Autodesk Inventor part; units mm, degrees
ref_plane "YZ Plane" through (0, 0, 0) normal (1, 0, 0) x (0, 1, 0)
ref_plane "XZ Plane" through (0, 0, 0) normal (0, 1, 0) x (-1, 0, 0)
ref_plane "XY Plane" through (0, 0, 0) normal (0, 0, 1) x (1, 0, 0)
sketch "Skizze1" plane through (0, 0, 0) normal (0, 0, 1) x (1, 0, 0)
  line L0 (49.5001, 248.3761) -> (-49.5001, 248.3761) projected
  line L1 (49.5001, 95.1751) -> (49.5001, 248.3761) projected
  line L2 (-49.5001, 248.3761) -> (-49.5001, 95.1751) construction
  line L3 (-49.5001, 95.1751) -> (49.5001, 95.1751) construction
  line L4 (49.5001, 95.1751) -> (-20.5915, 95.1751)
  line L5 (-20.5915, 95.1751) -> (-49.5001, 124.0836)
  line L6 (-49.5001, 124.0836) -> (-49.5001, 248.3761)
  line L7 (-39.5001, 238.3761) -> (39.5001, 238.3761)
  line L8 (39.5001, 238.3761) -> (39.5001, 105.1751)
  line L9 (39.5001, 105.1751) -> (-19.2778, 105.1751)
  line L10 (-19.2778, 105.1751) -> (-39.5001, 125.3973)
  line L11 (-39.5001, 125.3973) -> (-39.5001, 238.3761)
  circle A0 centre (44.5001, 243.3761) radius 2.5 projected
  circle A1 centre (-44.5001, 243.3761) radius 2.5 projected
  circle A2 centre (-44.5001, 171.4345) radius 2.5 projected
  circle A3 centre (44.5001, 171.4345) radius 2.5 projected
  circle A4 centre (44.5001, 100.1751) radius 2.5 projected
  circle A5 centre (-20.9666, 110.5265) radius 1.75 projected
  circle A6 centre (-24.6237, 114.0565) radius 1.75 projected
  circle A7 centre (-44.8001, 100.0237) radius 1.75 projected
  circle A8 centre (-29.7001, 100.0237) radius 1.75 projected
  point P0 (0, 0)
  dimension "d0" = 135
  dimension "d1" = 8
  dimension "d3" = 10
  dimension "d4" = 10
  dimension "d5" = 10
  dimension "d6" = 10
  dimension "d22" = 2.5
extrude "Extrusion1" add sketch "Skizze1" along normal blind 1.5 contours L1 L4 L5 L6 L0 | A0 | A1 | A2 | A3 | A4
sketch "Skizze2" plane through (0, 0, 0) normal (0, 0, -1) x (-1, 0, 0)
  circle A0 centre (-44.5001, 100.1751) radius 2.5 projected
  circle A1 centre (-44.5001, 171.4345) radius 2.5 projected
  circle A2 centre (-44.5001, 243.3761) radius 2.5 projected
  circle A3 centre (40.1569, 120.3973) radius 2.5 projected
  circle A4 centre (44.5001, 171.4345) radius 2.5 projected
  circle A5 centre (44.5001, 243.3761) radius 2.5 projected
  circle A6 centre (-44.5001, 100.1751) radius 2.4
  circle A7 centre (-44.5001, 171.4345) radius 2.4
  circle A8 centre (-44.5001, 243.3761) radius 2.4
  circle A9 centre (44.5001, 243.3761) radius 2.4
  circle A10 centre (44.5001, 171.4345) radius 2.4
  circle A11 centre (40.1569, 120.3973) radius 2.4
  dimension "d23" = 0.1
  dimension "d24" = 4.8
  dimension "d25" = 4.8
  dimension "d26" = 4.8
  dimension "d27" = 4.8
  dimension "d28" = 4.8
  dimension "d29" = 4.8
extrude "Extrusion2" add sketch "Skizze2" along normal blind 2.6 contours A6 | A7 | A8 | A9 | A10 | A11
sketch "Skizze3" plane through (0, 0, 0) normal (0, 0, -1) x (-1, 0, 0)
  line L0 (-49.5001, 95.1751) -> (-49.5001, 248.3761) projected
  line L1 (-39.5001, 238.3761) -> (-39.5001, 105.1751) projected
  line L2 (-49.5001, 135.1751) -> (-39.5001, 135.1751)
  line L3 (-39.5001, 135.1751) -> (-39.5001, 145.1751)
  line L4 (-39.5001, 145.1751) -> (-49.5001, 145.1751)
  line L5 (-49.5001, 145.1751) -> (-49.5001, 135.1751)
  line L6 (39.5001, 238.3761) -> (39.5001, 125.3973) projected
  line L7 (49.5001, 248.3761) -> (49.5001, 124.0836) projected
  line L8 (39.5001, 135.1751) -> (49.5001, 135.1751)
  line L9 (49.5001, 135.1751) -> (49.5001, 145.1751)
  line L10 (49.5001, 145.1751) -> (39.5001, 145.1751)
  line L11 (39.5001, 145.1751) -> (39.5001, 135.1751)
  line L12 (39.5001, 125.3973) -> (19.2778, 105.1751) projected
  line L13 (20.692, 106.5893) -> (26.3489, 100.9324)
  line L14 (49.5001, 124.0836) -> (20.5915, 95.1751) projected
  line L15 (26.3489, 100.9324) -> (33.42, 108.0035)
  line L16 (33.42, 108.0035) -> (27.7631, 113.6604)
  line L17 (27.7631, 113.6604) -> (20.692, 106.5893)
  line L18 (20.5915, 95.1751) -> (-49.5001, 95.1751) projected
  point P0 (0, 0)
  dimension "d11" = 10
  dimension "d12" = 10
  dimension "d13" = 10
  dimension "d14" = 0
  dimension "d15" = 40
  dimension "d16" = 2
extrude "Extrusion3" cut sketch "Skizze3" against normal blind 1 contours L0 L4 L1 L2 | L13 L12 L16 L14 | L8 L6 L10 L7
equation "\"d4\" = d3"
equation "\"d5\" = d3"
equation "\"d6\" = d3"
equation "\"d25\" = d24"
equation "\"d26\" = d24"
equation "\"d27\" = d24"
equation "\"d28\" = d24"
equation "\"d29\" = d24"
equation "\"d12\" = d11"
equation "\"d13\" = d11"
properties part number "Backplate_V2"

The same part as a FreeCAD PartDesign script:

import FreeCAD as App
import Part
import Sketcher
Q = App.Units.Quantity


def add_polygon(sketch, points):
    """Adds a closed chain of lines whose ends are joined by coincident constraints."""
    first, n = sketch.GeometryCount, len(points)
    for a, b in zip(points, points[1:] + points[:1]):
        sketch.addGeometry(Part.LineSegment(App.Vector(*a, 0), App.Vector(*b, 0)), False)
    for i in range(n):
        sketch.addConstraint(Sketcher.Constraint("Coincident", first + i, 2, first + (i + 1) % n, 1))

doc = App.newDocument("Part")
body = doc.addObject("PartDesign::Body", "Body")

# Sketch on XY plane
sketch1 = doc.addObject("Sketcher::SketchObject", "Sketch")
body.addObject(sketch1)
sketch1.AttachmentSupport = (doc.XY_Plane, [""])
sketch1.MapMode = "FlatFace"
add_polygon(sketch1, [(50, 95), (50, 248), (-50, 248), (-50, 124), (-21, 95)])  # lines 0-4
add_polygon(sketch1, [(-40, 125), (-40, 238), (40, 238), (40, 105), (-19, 105)])  # lines 5-9
sketch1.addConstraint([
    Sketcher.Constraint("Vertical", 0),
    Sketcher.Constraint("Horizontal", 1),
    Sketcher.Constraint("Vertical", 2),
    Sketcher.Constraint("Horizontal", 4),
    Sketcher.Constraint("Vertical", 5),
    Sketcher.Constraint("Horizontal", 6),
    Sketcher.Constraint("Vertical", 7),
    Sketcher.Constraint("Horizontal", 8),
    Sketcher.Constraint("Parallel", 3, 9),
    Sketcher.Constraint("Angle", 9, Q("135.0001 deg")),
    Sketcher.Constraint("DistanceX", 1, 2, 5, 2, Q("10 mm")),
    Sketcher.Constraint("DistanceY", 5, 2, 1, 2, Q("10 mm")),
    Sketcher.Constraint("DistanceX", 6, 2, 0, 2, Q("10 mm")),
    Sketcher.Constraint("DistanceY", 4, 2, 7, 2, Q("10 mm")),
    Sketcher.Constraint("DistanceX", -1, 1, 0, 2, Q("49.5 mm")),
    Sketcher.Constraint("DistanceX", 1, 2, -1, 1, Q("49.5 mm")),
    Sketcher.Constraint("DistanceX", 8, 2, 8, 1, Q("58.778 mm")),
    Sketcher.Constraint("DistanceY", 0, 1, 0, 2, Q("153.201 mm")),
    Sketcher.Constraint("DistanceX", 4, 1, 4, 2, Q("70.0916 mm")),
    Sketcher.Constraint("DistanceY", -1, 1, 0, 2, Q("248.376 mm")),
])
pad1 = doc.addObject("PartDesign::Pad", "Pad")
body.addObject(pad1)
pad1.Profile = sketch1
pad1.Length = 1.5

# Sketch on XY plane
sketch2 = doc.addObject("Sketcher::SketchObject", "Sketch001")
body.addObject(sketch2)
sketch2.AttachmentSupport = (doc.XY_Plane, [""])
sketch2.MapMode = "FlatFace"
sketch2.addGeometry([
    Part.Circle(App.Vector(44.5, 100.2, 0), App.Vector(0, 0, 1), 2.4),  # 0
    Part.Circle(App.Vector(44.5, 171.4, 0), App.Vector(0, 0, 1), 2.4),  # 1
    Part.Circle(App.Vector(44.5, 243.4, 0), App.Vector(0, 0, 1), 2.4),  # 2
    Part.Circle(App.Vector(-44.5, 243.4, 0), App.Vector(0, 0, 1), 2.4),  # 3
    Part.Circle(App.Vector(-44.5, 171.4, 0), App.Vector(0, 0, 1), 2.4),  # 4
    Part.Circle(App.Vector(-40.2, 120.4, 0), App.Vector(0, 0, 1), 2.4),  # 5
], False)
sketch2.addConstraint([
    Sketcher.Constraint("Equal", 0, 1),
    Sketcher.Constraint("Equal", 1, 2),
    Sketcher.Constraint("Equal", 2, 3),
    Sketcher.Constraint("Equal", 3, 4),
    Sketcher.Constraint("Equal", 4, 5),
    Sketcher.Constraint("Symmetric", 2, 3, 3, 3, -2),
    Sketcher.Constraint("Symmetric", 1, 3, 4, 3, -2),
    Sketcher.Constraint("Vertical", 0, 3, 1, 3),
    Sketcher.Constraint("Vertical", 1, 3, 2, 3),
    Sketcher.Constraint("Diameter", 0, Q("4.8 mm")),
    Sketcher.Constraint("DistanceX", -1, 1, 0, 3, Q("44.5 mm")),
    Sketcher.Constraint("DistanceY", -1, 1, 0, 3, Q("100.175 mm")),
    Sketcher.Constraint("DistanceY", -1, 1, 2, 3, Q("243.376 mm")),
    Sketcher.Constraint("DistanceX", 5, 3, -1, 1, Q("40.157 mm")),
    Sketcher.Constraint("DistanceY", -1, 1, 1, 3, Q("171.4345 mm")),
    Sketcher.Constraint("DistanceY", -1, 1, 5, 3, Q("120.3973 mm")),
])
pad2 = doc.addObject("PartDesign::Pad", "Pad001")
body.addObject(pad2)
pad2.Profile = sketch2
pad2.Length = 2.6
pad2.Reversed = True

# Sketch on XY plane
sketch3 = doc.addObject("Sketcher::SketchObject", "Sketch002")
body.addObject(sketch3)
sketch3.AttachmentSupport = (doc.XY_Plane, [""])
sketch3.MapMode = "FlatFace"
add_polygon(sketch3, [(50, 145), (50, 135), (40, 135), (40, 145)])  # lines 0-3
add_polygon(sketch3, [(-21, 107), (-26, 101), (-33, 108), (-28, 114)])  # lines 4-7
add_polygon(sketch3, [(-40, 135), (-50, 135), (-50, 145), (-40, 145)])  # lines 8-11
sketch3.addConstraint([
    Sketcher.Constraint("Vertical", 0),
    Sketcher.Constraint("Horizontal", 1),
    Sketcher.Constraint("Vertical", 2),
    Sketcher.Constraint("Horizontal", 3),
    Sketcher.Constraint("Horizontal", 8),
    Sketcher.Constraint("Vertical", 9),
    Sketcher.Constraint("Horizontal", 10),
    Sketcher.Constraint("Vertical", 11),
    Sketcher.Constraint("Symmetric", 0, 2, 8, 2, -2),
    Sketcher.Constraint("Symmetric", 2, 2, 10, 2, -2),
    Sketcher.Constraint("Perpendicular", 4, 5),
    Sketcher.Constraint("Perpendicular", 5, 6),
    Sketcher.Constraint("Perpendicular", 6, 7),
    Sketcher.Constraint("Equal", 10, 0),
    Sketcher.Constraint("DistanceX", 1, 2, 1, 1, Q("10 mm")),
    Sketcher.Constraint("Distance", 5, Q("10 mm")),
    Sketcher.Constraint("Angle", 4, Q("-135 deg")),
    Sketcher.Constraint("Distance", 4, Q("8 mm")),
    Sketcher.Constraint("DistanceX", -1, 1, 0, 2, Q("49.5 mm")),
    Sketcher.Constraint("DistanceX", 5, 2, -1, 1, Q("33.42 mm")),
    Sketcher.Constraint("DistanceY", -1, 1, 0, 2, Q("135.175 mm")),
    Sketcher.Constraint("DistanceY", -1, 1, 4, 2, Q("100.9324 mm")),
])
pocket1 = doc.addObject("PartDesign::Pocket", "Pocket")
body.addObject(pocket1)
pocket1.Profile = sketch3
pocket1.Length = 1
pocket1.Reversed = True

doc.recompute()
